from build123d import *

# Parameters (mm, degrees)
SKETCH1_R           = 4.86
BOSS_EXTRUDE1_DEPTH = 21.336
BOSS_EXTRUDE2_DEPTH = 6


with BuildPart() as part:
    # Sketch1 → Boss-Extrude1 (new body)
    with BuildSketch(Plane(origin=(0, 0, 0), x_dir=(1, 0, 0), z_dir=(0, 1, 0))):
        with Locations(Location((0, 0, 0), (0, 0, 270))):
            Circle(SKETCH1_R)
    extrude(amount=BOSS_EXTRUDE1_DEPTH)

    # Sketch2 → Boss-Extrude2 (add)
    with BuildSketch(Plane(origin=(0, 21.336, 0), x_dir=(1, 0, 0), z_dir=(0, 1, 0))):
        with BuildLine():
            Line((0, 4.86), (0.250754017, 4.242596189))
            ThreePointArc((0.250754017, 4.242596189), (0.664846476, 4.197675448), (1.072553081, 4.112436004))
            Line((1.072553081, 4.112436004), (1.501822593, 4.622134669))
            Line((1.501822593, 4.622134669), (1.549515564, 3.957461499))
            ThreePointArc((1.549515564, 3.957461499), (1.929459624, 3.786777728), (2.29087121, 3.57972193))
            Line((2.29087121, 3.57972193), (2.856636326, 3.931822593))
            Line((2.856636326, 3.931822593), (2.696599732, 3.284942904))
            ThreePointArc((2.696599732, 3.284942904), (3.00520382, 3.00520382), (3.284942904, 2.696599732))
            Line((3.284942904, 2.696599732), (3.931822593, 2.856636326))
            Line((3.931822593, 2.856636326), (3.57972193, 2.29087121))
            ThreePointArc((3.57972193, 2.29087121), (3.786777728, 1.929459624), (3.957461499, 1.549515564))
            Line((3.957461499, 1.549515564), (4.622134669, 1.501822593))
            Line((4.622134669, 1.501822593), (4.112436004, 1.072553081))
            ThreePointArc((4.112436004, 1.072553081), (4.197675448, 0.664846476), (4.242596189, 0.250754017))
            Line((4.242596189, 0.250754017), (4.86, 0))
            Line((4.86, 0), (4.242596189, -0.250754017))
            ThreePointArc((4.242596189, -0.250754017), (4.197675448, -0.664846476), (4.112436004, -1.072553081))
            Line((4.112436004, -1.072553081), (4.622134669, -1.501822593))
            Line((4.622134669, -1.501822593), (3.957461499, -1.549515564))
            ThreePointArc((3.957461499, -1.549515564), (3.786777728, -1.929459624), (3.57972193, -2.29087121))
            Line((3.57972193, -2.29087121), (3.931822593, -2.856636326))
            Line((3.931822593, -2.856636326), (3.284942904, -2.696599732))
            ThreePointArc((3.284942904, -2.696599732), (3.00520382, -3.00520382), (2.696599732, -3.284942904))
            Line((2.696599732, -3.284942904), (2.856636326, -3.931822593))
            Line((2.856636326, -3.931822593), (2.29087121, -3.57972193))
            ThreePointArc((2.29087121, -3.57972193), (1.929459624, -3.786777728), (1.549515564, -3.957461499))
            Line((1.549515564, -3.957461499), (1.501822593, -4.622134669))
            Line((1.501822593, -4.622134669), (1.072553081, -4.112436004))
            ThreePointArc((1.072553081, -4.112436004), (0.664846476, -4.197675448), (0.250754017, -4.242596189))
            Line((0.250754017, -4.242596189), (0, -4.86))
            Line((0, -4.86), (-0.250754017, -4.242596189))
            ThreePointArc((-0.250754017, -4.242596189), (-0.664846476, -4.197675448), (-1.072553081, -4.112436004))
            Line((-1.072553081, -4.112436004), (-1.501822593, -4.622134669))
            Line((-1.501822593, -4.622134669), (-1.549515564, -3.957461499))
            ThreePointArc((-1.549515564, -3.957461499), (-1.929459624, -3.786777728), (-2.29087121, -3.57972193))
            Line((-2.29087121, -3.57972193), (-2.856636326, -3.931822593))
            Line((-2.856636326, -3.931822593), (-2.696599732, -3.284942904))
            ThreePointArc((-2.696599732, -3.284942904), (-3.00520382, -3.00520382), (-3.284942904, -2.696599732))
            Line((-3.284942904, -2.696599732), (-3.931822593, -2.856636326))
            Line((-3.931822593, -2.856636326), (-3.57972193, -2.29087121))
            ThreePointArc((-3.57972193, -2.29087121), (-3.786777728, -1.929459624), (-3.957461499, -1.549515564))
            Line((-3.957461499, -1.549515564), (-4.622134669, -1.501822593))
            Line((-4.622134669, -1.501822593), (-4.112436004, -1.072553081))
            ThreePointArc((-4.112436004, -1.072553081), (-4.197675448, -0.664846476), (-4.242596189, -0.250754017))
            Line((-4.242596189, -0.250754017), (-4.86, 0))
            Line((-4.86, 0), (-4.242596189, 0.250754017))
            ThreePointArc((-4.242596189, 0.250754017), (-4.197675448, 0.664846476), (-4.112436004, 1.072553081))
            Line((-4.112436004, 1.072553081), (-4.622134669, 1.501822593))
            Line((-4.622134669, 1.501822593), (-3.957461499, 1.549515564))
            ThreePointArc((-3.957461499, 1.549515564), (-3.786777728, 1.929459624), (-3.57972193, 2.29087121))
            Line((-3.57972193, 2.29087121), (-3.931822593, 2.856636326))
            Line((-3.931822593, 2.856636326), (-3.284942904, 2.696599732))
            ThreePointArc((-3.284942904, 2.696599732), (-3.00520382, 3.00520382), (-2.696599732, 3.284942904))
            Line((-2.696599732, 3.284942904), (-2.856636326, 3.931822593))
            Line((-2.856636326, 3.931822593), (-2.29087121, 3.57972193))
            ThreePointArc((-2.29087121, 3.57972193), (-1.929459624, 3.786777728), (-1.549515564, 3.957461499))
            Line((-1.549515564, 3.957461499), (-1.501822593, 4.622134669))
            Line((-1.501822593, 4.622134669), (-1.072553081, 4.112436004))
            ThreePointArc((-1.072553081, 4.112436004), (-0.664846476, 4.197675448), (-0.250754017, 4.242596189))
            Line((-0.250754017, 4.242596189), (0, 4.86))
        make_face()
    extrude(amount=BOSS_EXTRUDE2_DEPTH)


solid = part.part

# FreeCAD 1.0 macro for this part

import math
import FreeCAD as App
import Part
import Sketcher

V = App.Vector
Q = App.Units.Quantity

doc = App.newDocument("Part")
params = doc.addObject("Spreadsheet::Sheet", "Params")
for row, (alias, value) in enumerate([
    ("sketch1_diameter", "9.72 mm"),
    ("pad1_length", "21.336 mm"),
    ("sketch2_radius", "4.25 mm"),
    ("pad2_length", "6 mm"),
], start=1):
    params.set(f"A{row}", alias)
    params.set(f"B{row}", "=" + value)
    params.setAlias(f"B{row}", alias)

body = doc.addObject("PartDesign::Body", "Body")

# Sketch on XZ plane
sketch1 = body.newObject("Sketcher::SketchObject", "Sketch")
sketch1.AttachmentSupport = (doc.getObject("XZ_Plane"), [""])
sketch1.MapMode = "FlatFace"
sketch1.addGeometry(Part.Circle(V(0, 0, 0), V(0, 0, 1), 4.9), False)
sketch1.addConstraint(Sketcher.Constraint("Coincident", 0, 3, -1, 1))
sketch1.addConstraint(Sketcher.Constraint("Diameter", 0, Q("9.72 mm")))
sketch1.setExpression("Constraints[1]", "Params.sketch1_diameter")
pad1 = body.newObject("PartDesign::Pad", "Pad")
pad1.Profile = sketch1
pad1.setExpression("Length", "Params.pad1_length")
pad1.Reversed = True

# Sketch on XZ plane
sketch2 = body.newObject("Sketcher::SketchObject", "Sketch001")
sketch2.AttachmentSupport = (doc.getObject("XZ_Plane"), [""])
sketch2.MapMode = "FlatFace"
sketch2.AttachmentOffset = App.Placement(V(0, 0, -21.336), App.Rotation())
sketch2.addGeometry(Part.LineSegment(V(0.3, -4.2, 0), V(0, -4.9, 0)), False)
sketch2.addGeometry(Part.LineSegment(V(0, -4.9, 0), V(-0.3, -4.2, 0)), False)
sketch2.addGeometry(Part.ArcOfCircle(Part.Circle(V(0, 0, 0), V(0, 0, 1), 4.2), math.radians(-104.62), math.radians(-93.38)), False)
sketch2.addGeometry(Part.LineSegment(V(-1.1, -4.1, 0), V(-1.5, -4.6, 0)), False)
sketch2.addGeometry(Part.LineSegment(V(-1.5, -4.6, 0), V(-1.5, -4, 0)), False)
sketch2.addGeometry(Part.ArcOfCircle(Part.Circle(V(0, 0, 0), V(0, 0, 1), 4.2), math.radians(-122.62), math.radians(-111.38)), False)
sketch2.addGeometry(Part.LineSegment(V(-2.3, -3.6, 0), V(-2.9, -3.9, 0)), False)
sketch2.addGeometry(Part.LineSegment(V(-2.9, -3.9, 0), V(-2.7, -3.3, 0)), False)
sketch2.addGeometry(Part.ArcOfCircle(Part.Circle(V(0, 0, 0), V(0, 0, 1), 4.2), math.radians(-140.62), math.radians(-129.38)), False)
sketch2.addGeometry(Part.LineSegment(V(-3.3, -2.7, 0), V(-3.9, -2.9, 0)), False)
sketch2.addGeometry(Part.LineSegment(V(-3.9, -2.9, 0), V(-3.6, -2.3, 0)), False)
sketch2.addGeometry(Part.ArcOfCircle(Part.Circle(V(0, 0, 0), V(0, 0, 1), 4.2), math.radians(-158.62), math.radians(-147.38)), False)
sketch2.addGeometry(Part.LineSegment(V(-4, -1.5, 0), V(-4.6, -1.5, 0)), False)
sketch2.addGeometry(Part.LineSegment(V(-4.6, -1.5, 0), V(-4.1, -1.1, 0)), False)
sketch2.addGeometry(Part.ArcOfCircle(Part.Circle(V(0, 0, 0), V(0, 0, 1), 4.2), math.radians(-176.62), math.radians(-165.38)), False)
sketch2.addGeometry(Part.LineSegment(V(-4.2, -0.3, 0), V(-4.9, 0, 0)), False)
sketch2.addGeometry(Part.LineSegment(V(-4.9, 0, 0), V(-4.2, 0.3, 0)), False)
sketch2.addGeometry(Part.ArcOfCircle(Part.Circle(V(0, 0, 0), V(0, 0, 1), 4.2), math.radians(165.38), math.radians(176.62)), False)
sketch2.addGeometry(Part.LineSegment(V(-4.1, 1.1, 0), V(-4.6, 1.5, 0)), False)
sketch2.addGeometry(Part.LineSegment(V(-4.6, 1.5, 0), V(-4, 1.5, 0)), False)
sketch2.addGeometry(Part.ArcOfCircle(Part.Circle(V(0, 0, 0), V(0, 0, 1), 4.2), math.radians(147.38), math.radians(158.62)), False)
sketch2.addGeometry(Part.LineSegment(V(-3.6, 2.3, 0), V(-3.9, 2.9, 0)), False)
sketch2.addGeometry(Part.LineSegment(V(-3.9, 2.9, 0), V(-3.3, 2.7, 0)), False)
sketch2.addGeometry(Part.ArcOfCircle(Part.Circle(V(0, 0, 0), V(0, 0, 1), 4.2), math.radians(129.38), math.radians(140.62)), False)
sketch2.addGeometry(Part.LineSegment(V(-2.7, 3.3, 0), V(-2.9, 3.9, 0)), False)
sketch2.addGeometry(Part.LineSegment(V(-2.9, 3.9, 0), V(-2.3, 3.6, 0)), False)
sketch2.addGeometry(Part.ArcOfCircle(Part.Circle(V(0, 0, 0), V(0, 0, 1), 4.2), math.radians(111.38), math.radians(122.62)), False)
sketch2.addGeometry(Part.LineSegment(V(-1.5, 4, 0), V(-1.5, 4.6, 0)), False)
sketch2.addGeometry(Part.LineSegment(V(-1.5, 4.6, 0), V(-1.1, 4.1, 0)), False)
sketch2.addGeometry(Part.ArcOfCircle(Part.Circle(V(0, 0, 0), V(0, 0, 1), 4.2), math.radians(93.38), math.radians(104.62)), False)
sketch2.addGeometry(Part.LineSegment(V(-0.3, 4.2, 0), V(0, 4.9, 0)), False)
sketch2.addGeometry(Part.LineSegment(V(0, 4.9, 0), V(0.3, 4.2, 0)), False)
sketch2.addGeometry(Part.ArcOfCircle(Part.Circle(V(0, 0, 0), V(0, 0, 1), 4.2), math.radians(75.38), math.radians(86.62)), False)
sketch2.addGeometry(Part.LineSegment(V(1.1, 4.1, 0), V(1.5, 4.6, 0)), False)
sketch2.addGeometry(Part.LineSegment(V(1.5, 4.6, 0), V(1.5, 4, 0)), False)
sketch2.addGeometry(Part.ArcOfCircle(Part.Circle(V(0, 0, 0), V(0, 0, 1), 4.2), math.radians(57.38), math.radians(68.62)), False)
sketch2.addGeometry(Part.LineSegment(V(2.3, 3.6, 0), V(2.9, 3.9, 0)), False)
sketch2.addGeometry(Part.LineSegment(V(2.9, 3.9, 0), V(2.7, 3.3, 0)), False)
sketch2.addGeometry(Part.ArcOfCircle(Part.Circle(V(0, 0, 0), V(0, 0, 1), 4.2), math.radians(39.38), math.radians(50.62)), False)
sketch2.addGeometry(Part.LineSegment(V(3.3, 2.7, 0), V(3.9, 2.9, 0)), False)
sketch2.addGeometry(Part.LineSegment(V(3.9, 2.9, 0), V(3.6, 2.3, 0)), False)
sketch2.addGeometry(Part.ArcOfCircle(Part.Circle(V(0, 0, 0), V(0, 0, 1), 4.2), math.radians(21.38), math.radians(32.62)), False)
sketch2.addGeometry(Part.LineSegment(V(4, 1.5, 0), V(4.6, 1.5, 0)), False)
sketch2.addGeometry(Part.LineSegment(V(4.6, 1.5, 0), V(4.1, 1.1, 0)), False)
sketch2.addGeometry(Part.ArcOfCircle(Part.Circle(V(0, 0, 0), V(0, 0, 1), 4.2), math.radians(3.38), math.radians(14.62)), False)
sketch2.addGeometry(Part.LineSegment(V(4.2, 0.3, 0), V(4.9, 0, 0)), False)
sketch2.addGeometry(Part.LineSegment(V(4.9, 0, 0), V(4.2, -0.3, 0)), False)
sketch2.addGeometry(Part.ArcOfCircle(Part.Circle(V(0, 0, 0), V(0, 0, 1), 4.2), math.radians(-14.62), math.radians(-3.38)), False)
sketch2.addGeometry(Part.LineSegment(V(4.1, -1.1, 0), V(4.6, -1.5, 0)), False)
sketch2.addGeometry(Part.LineSegment(V(4.6, -1.5, 0), V(4, -1.5, 0)), False)
sketch2.addGeometry(Part.ArcOfCircle(Part.Circle(V(0, 0, 0), V(0, 0, 1), 4.2), math.radians(-32.62), math.radians(-21.38)), False)
sketch2.addGeometry(Part.LineSegment(V(3.6, -2.3, 0), V(3.9, -2.9, 0)), False)
sketch2.addGeometry(Part.LineSegment(V(3.9, -2.9, 0), V(3.3, -2.7, 0)), False)
sketch2.addGeometry(Part.ArcOfCircle(Part.Circle(V(0, 0, 0), V(0, 0, 1), 4.2), math.radians(-50.62), math.radians(-39.38)), False)
sketch2.addGeometry(Part.LineSegment(V(2.7, -3.3, 0), V(2.9, -3.9, 0)), False)
sketch2.addGeometry(Part.LineSegment(V(2.9, -3.9, 0), V(2.3, -3.6, 0)), False)
sketch2.addGeometry(Part.ArcOfCircle(Part.Circle(V(0, 0, 0), V(0, 0, 1), 4.2), math.radians(-68.62), math.radians(-57.38)), False)
sketch2.addGeometry(Part.LineSegment(V(1.5, -4, 0), V(1.5, -4.6, 0)), False)
sketch2.addGeometry(Part.LineSegment(V(1.5, -4.6, 0), V(1.1, -4.1, 0)), False)
sketch2.addGeometry(Part.ArcOfCircle(Part.Circle(V(0, 0, 0), V(0, 0, 1), 4.2), math.radians(-86.62), math.radians(-75.38)), False)
sketch2.addConstraint(Sketcher.Constraint("Coincident", 0, 2, 1, 1))
sketch2.addConstraint(Sketcher.Constraint("Coincident", 1, 2, 2, 2))
sketch2.addConstraint(Sketcher.Constraint("Coincident", 2, 1, 3, 1))
sketch2.addConstraint(Sketcher.Constraint("Coincident", 3, 2, 4, 1))
sketch2.addConstraint(Sketcher.Constraint("Coincident", 4, 2, 5, 2))
sketch2.addConstraint(Sketcher.Constraint("Coincident", 5, 1, 6, 1))
sketch2.addConstraint(Sketcher.Constraint("Coincident", 6, 2, 7, 1))
sketch2.addConstraint(Sketcher.Constraint("Coincident", 7, 2, 8, 2))
sketch2.addConstraint(Sketcher.Constraint("Coincident", 8, 1, 9, 1))
sketch2.addConstraint(Sketcher.Constraint("Coincident", 9, 2, 10, 1))
sketch2.addConstraint(Sketcher.Constraint("Coincident", 10, 2, 11, 2))
sketch2.addConstraint(Sketcher.Constraint("Coincident", 11, 1, 12, 1))
sketch2.addConstraint(Sketcher.Constraint("Coincident", 12, 2, 13, 1))
sketch2.addConstraint(Sketcher.Constraint("Coincident", 13, 2, 14, 2))
sketch2.addConstraint(Sketcher.Constraint("Coincident", 14, 1, 15, 1))
sketch2.addConstraint(Sketcher.Constraint("Coincident", 15, 2, 16, 1))
sketch2.addConstraint(Sketcher.Constraint("Coincident", 16, 2, 17, 2))
sketch2.addConstraint(Sketcher.Constraint("Coincident", 17, 1, 18, 1))
sketch2.addConstraint(Sketcher.Constraint("Coincident", 18, 2, 19, 1))
sketch2.addConstraint(Sketcher.Constraint("Coincident", 19, 2, 20, 2))
sketch2.addConstraint(Sketcher.Constraint("Coincident", 20, 1, 21, 1))
sketch2.addConstraint(Sketcher.Constraint("Coincident", 21, 2, 22, 1))
sketch2.addConstraint(Sketcher.Constraint("Coincident", 22, 2, 23, 2))
sketch2.addConstraint(Sketcher.Constraint("Coincident", 23, 1, 24, 1))
sketch2.addConstraint(Sketcher.Constraint("Coincident", 24, 2, 25, 1))
sketch2.addConstraint(Sketcher.Constraint("Coincident", 25, 2, 26, 2))
sketch2.addConstraint(Sketcher.Constraint("Coincident", 26, 1, 27, 1))
sketch2.addConstraint(Sketcher.Constraint("Coincident", 27, 2, 28, 1))
sketch2.addConstraint(Sketcher.Constraint("Coincident", 28, 2, 29, 2))
sketch2.addConstraint(Sketcher.Constraint("Coincident", 29, 1, 30, 1))
sketch2.addConstraint(Sketcher.Constraint("Coincident", 30, 2, 31, 1))
sketch2.addConstraint(Sketcher.Constraint("Coincident", 31, 2, 32, 2))
sketch2.addConstraint(Sketcher.Constraint("Coincident", 32, 1, 33, 1))
sketch2.addConstraint(Sketcher.Constraint("Coincident", 33, 2, 34, 1))
sketch2.addConstraint(Sketcher.Constraint("Coincident", 34, 2, 35, 2))
sketch2.addConstraint(Sketcher.Constraint("Coincident", 35, 1, 36, 1))
sketch2.addConstraint(Sketcher.Constraint("Coincident", 36, 2, 37, 1))
sketch2.addConstraint(Sketcher.Constraint("Coincident", 37, 2, 38, 2))
sketch2.addConstraint(Sketcher.Constraint("Coincident", 38, 1, 39, 1))
sketch2.addConstraint(Sketcher.Constraint("Coincident", 39, 2, 40, 1))
sketch2.addConstraint(Sketcher.Constraint("Coincident", 40, 2, 41, 2))
sketch2.addConstraint(Sketcher.Constraint("Coincident", 41, 1, 42, 1))
sketch2.addConstraint(Sketcher.Constraint("Coincident", 42, 2, 43, 1))
sketch2.addConstraint(Sketcher.Constraint("Coincident", 43, 2, 44, 2))
sketch2.addConstraint(Sketcher.Constraint("Coincident", 44, 1, 45, 1))
sketch2.addConstraint(Sketcher.Constraint("Coincident", 45, 2, 46, 1))
sketch2.addConstraint(Sketcher.Constraint("Coincident", 46, 2, 47, 2))
sketch2.addConstraint(Sketcher.Constraint("Coincident", 47, 1, 48, 1))
sketch2.addConstraint(Sketcher.Constraint("Coincident", 48, 2, 49, 1))
sketch2.addConstraint(Sketcher.Constraint("Coincident", 49, 2, 50, 2))
sketch2.addConstraint(Sketcher.Constraint("Coincident", 50, 1, 51, 1))
sketch2.addConstraint(Sketcher.Constraint("Coincident", 51, 2, 52, 1))
sketch2.addConstraint(Sketcher.Constraint("Coincident", 52, 2, 53, 2))
sketch2.addConstraint(Sketcher.Constraint("Coincident", 53, 1, 54, 1))
sketch2.addConstraint(Sketcher.Constraint("Coincident", 54, 2, 55, 1))
sketch2.addConstraint(Sketcher.Constraint("Coincident", 55, 2, 56, 2))
sketch2.addConstraint(Sketcher.Constraint("Coincident", 56, 1, 57, 1))
sketch2.addConstraint(Sketcher.Constraint("Coincident", 57, 2, 58, 1))
sketch2.addConstraint(Sketcher.Constraint("Coincident", 58, 2, 59, 2))
sketch2.addConstraint(Sketcher.Constraint("Coincident", 59, 1, 0, 1))
sketch2.addConstraint(Sketcher.Constraint("Coincident", 2, 3, -1, 1))
sketch2.addConstraint(Sketcher.Constraint("Coincident", 5, 3, -1, 1))
sketch2.addConstraint(Sketcher.Constraint("Coincident", 8, 3, -1, 1))
sketch2.addConstraint(Sketcher.Constraint("Coincident", 11, 3, -1, 1))
sketch2.addConstraint(Sketcher.Constraint("Coincident", 14, 3, -1, 1))
sketch2.addConstraint(Sketcher.Constraint("Coincident", 17, 3, -1, 1))
sketch2.addConstraint(Sketcher.Constraint("Coincident", 20, 3, -1, 1))
sketch2.addConstraint(Sketcher.Constraint("Coincident", 23, 3, -1, 1))
sketch2.addConstraint(Sketcher.Constraint("Coincident", 26, 3, -1, 1))
sketch2.addConstraint(Sketcher.Constraint("Coincident", 29, 3, -1, 1))
sketch2.addConstraint(Sketcher.Constraint("Coincident", 32, 3, -1, 1))
sketch2.addConstraint(Sketcher.Constraint("Coincident", 35, 3, -1, 1))
sketch2.addConstraint(Sketcher.Constraint("Coincident", 38, 3, -1, 1))
sketch2.addConstraint(Sketcher.Constraint("Coincident", 41, 3, -1, 1))
sketch2.addConstraint(Sketcher.Constraint("Coincident", 44, 3, -1, 1))
sketch2.addConstraint(Sketcher.Constraint("Coincident", 47, 3, -1, 1))
sketch2.addConstraint(Sketcher.Constraint("Coincident", 50, 3, -1, 1))
sketch2.addConstraint(Sketcher.Constraint("Coincident", 53, 3, -1, 1))
sketch2.addConstraint(Sketcher.Constraint("Coincident", 56, 3, -1, 1))
sketch2.addConstraint(Sketcher.Constraint("Coincident", 59, 3, -1, 1))
sketch2.addConstraint(Sketcher.Constraint("Equal", 2, 5))
sketch2.addConstraint(Sketcher.Constraint("Equal", 5, 8))
sketch2.addConstraint(Sketcher.Constraint("Equal", 8, 11))
sketch2.addConstraint(Sketcher.Constraint("Equal", 11, 14))
sketch2.addConstraint(Sketcher.Constraint("Equal", 14, 17))
sketch2.addConstraint(Sketcher.Constraint("Equal", 17, 20))
sketch2.addConstraint(Sketcher.Constraint("Equal", 20, 23))
sketch2.addConstraint(Sketcher.Constraint("Equal", 23, 26))
sketch2.addConstraint(Sketcher.Constraint("Equal", 26, 29))
sketch2.addConstraint(Sketcher.Constraint("Equal", 29, 32))
sketch2.addConstraint(Sketcher.Constraint("Equal", 32, 35))
sketch2.addConstraint(Sketcher.Constraint("Equal", 35, 38))
sketch2.addConstraint(Sketcher.Constraint("Equal", 38, 41))
sketch2.addConstraint(Sketcher.Constraint("Equal", 41, 44))
sketch2.addConstraint(Sketcher.Constraint("Equal", 44, 47))
sketch2.addConstraint(Sketcher.Constraint("Equal", 47, 50))
sketch2.addConstraint(Sketcher.Constraint("Equal", 50, 53))
sketch2.addConstraint(Sketcher.Constraint("Equal", 53, 56))
sketch2.addConstraint(Sketcher.Constraint("Equal", 56, 59))
sketch2.addConstraint(Sketcher.Constraint("Symmetric", 0, 2, 30, 2, -1, 1))
sketch2.addConstraint(Sketcher.Constraint("Symmetric", 3, 2, 33, 2, -1, 1))
sketch2.addConstraint(Sketcher.Constraint("Symmetric", 6, 2, 36, 2, -1, 1))
sketch2.addConstraint(Sketcher.Constraint("Symmetric", 9, 2, 39, 2, -1, 1))
sketch2.addConstraint(Sketcher.Constraint("Symmetric", 12, 2, 42, 2, -1, 1))
sketch2.addConstraint(Sketcher.Constraint("Symmetric", 15, 2, 45, 2, -1, 1))
sketch2.addConstraint(Sketcher.Constraint("Symmetric", 18, 2, 48, 2, -1, 1))
sketch2.addConstraint(Sketcher.Constraint("Symmetric", 21, 2, 51, 2, -1, 1))
sketch2.addConstraint(Sketcher.Constraint("Symmetric", 24, 2, 54, 2, -1, 1))
sketch2.addConstraint(Sketcher.Constraint("Symmetric", 27, 2, 57, 2, -1, 1))
sketch2.addConstraint(Sketcher.Constraint("Symmetric", 27, 2, 33, 2, -2))
sketch2.addConstraint(Sketcher.Constraint("Symmetric", 24, 2, 36, 2, -2))
sketch2.addConstraint(Sketcher.Constraint("Symmetric", 21, 2, 39, 2, -2))
sketch2.addConstraint(Sketcher.Constraint("Symmetric", 18, 2, 42, 2, -2))
sketch2.addConstraint(Sketcher.Constraint("PointOnObject", 0, 2, -2))
sketch2.addConstraint(Sketcher.Constraint("PointOnObject", 15, 2, -1))
sketch2.addConstraint(Sketcher.Constraint("Perpendicular", 0, 15))
sketch2.addConstraint(Sketcher.Constraint("Perpendicular", 1, 16))
sketch2.addConstraint(Sketcher.Constraint("Perpendicular", 3, 18))
sketch2.addConstraint(Sketcher.Constraint("Perpendicular", 4, 19))
sketch2.addConstraint(Sketcher.Constraint("Perpendicular", 6, 21))
sketch2.addConstraint(Sketcher.Constraint("Perpendicular", 7, 22))
sketch2.addConstraint(Sketcher.Constraint("Perpendicular", 9, 24))
sketch2.addConstraint(Sketcher.Constraint("Perpendicular", 10, 25))
sketch2.addConstraint(Sketcher.Constraint("Perpendicular", 12, 27))
sketch2.addConstraint(Sketcher.Constraint("Perpendicular", 13, 28))
sketch2.addConstraint(Sketcher.Constraint("Perpendicular", 15, 30))
sketch2.addConstraint(Sketcher.Constraint("Perpendicular", 16, 31))
sketch2.addConstraint(Sketcher.Constraint("Perpendicular", 18, 33))
sketch2.addConstraint(Sketcher.Constraint("Perpendicular", 19, 34))
sketch2.addConstraint(Sketcher.Constraint("Perpendicular", 21, 36))
sketch2.addConstraint(Sketcher.Constraint("Perpendicular", 22, 37))
sketch2.addConstraint(Sketcher.Constraint("Perpendicular", 24, 39))
sketch2.addConstraint(Sketcher.Constraint("Perpendicular", 25, 40))
sketch2.addConstraint(Sketcher.Constraint("Perpendicular", 27, 42))
sketch2.addConstraint(Sketcher.Constraint("Perpendicular", 28, 43))
sketch2.addConstraint(Sketcher.Constraint("Perpendicular", 30, 45))
sketch2.addConstraint(Sketcher.Constraint("Perpendicular", 31, 46))
sketch2.addConstraint(Sketcher.Constraint("Perpendicular", 33, 48))
sketch2.addConstraint(Sketcher.Constraint("Perpendicular", 34, 49))
sketch2.addConstraint(Sketcher.Constraint("Perpendicular", 36, 51))
sketch2.addConstraint(Sketcher.Constraint("Perpendicular", 37, 52))
sketch2.addConstraint(Sketcher.Constraint("Perpendicular", 39, 54))
sketch2.addConstraint(Sketcher.Constraint("Perpendicular", 40, 55))
sketch2.addConstraint(Sketcher.Constraint("Perpendicular", 42, 57))
sketch2.addConstraint(Sketcher.Constraint("Perpendicular", 43, 58))
sketch2.addConstraint(Sketcher.Constraint("Horizontal", 29, 1, 31, 2))
sketch2.addConstraint(Sketcher.Constraint("Horizontal", 28, 2, 32, 1))
sketch2.addConstraint(Sketcher.Constraint("Horizontal", 26, 1, 34, 2))
sketch2.addConstraint(Sketcher.Constraint("Horizontal", 25, 2, 35, 1))
sketch2.addConstraint(Sketcher.Constraint("Horizontal", 23, 1, 37, 2))
sketch2.addConstraint(Sketcher.Constraint("Equal", 1, 3))
sketch2.addConstraint(Sketcher.Constraint("Equal", 3, 4))
sketch2.addConstraint(Sketcher.Constraint("Equal", 4, 6))
sketch2.addConstraint(Sketcher.Constraint("Equal", 6, 7))
sketch2.addConstraint(Sketcher.Constraint("Equal", 7, 9))
sketch2.addConstraint(Sketcher.Constraint("Equal", 9, 10))
sketch2.addConstraint(Sketcher.Constraint("Equal", 10, 12))
sketch2.addConstraint(Sketcher.Constraint("Equal", 12, 13))
sketch2.addConstraint(Sketcher.Constraint("Equal", 13, 15))
sketch2.addConstraint(Sketcher.Constraint("Radius", 2, Q("4.25 mm")))
sketch2.addConstraint(Sketcher.Constraint("DistanceY", 0, 2, -1, 1, Q("4.86 mm")))
sketch2.addConstraint(Sketcher.Constraint("DistanceX", 7, 2, -1, 1, Q("2.6966 mm")))
sketch2.addConstraint(Sketcher.Constraint("DistanceY", 4, 2, -1, 1, Q("3.957461 mm")))
sketch2.addConstraint(Sketcher.Constraint("DistanceX", 5, 1, -1, 1, Q("2.290871 mm")))
sketch2.addConstraint(Sketcher.Constraint("Distance", 0, Q("0.666382 mm")))
sketch2.addConstraint(Sketcher.Constraint("DistanceX", 2, 1, -1, 1, Q("1.072553 mm")))
sketch2.setExpression("Constraints[159]", "Params.sketch2_radius")
pad2 = body.newObject("PartDesign::Pad", "Pad001")
pad2.Profile = sketch2
pad2.setExpression("Length", "Params.pad2_length")
pad2.Reversed = True

doc.recompute()
